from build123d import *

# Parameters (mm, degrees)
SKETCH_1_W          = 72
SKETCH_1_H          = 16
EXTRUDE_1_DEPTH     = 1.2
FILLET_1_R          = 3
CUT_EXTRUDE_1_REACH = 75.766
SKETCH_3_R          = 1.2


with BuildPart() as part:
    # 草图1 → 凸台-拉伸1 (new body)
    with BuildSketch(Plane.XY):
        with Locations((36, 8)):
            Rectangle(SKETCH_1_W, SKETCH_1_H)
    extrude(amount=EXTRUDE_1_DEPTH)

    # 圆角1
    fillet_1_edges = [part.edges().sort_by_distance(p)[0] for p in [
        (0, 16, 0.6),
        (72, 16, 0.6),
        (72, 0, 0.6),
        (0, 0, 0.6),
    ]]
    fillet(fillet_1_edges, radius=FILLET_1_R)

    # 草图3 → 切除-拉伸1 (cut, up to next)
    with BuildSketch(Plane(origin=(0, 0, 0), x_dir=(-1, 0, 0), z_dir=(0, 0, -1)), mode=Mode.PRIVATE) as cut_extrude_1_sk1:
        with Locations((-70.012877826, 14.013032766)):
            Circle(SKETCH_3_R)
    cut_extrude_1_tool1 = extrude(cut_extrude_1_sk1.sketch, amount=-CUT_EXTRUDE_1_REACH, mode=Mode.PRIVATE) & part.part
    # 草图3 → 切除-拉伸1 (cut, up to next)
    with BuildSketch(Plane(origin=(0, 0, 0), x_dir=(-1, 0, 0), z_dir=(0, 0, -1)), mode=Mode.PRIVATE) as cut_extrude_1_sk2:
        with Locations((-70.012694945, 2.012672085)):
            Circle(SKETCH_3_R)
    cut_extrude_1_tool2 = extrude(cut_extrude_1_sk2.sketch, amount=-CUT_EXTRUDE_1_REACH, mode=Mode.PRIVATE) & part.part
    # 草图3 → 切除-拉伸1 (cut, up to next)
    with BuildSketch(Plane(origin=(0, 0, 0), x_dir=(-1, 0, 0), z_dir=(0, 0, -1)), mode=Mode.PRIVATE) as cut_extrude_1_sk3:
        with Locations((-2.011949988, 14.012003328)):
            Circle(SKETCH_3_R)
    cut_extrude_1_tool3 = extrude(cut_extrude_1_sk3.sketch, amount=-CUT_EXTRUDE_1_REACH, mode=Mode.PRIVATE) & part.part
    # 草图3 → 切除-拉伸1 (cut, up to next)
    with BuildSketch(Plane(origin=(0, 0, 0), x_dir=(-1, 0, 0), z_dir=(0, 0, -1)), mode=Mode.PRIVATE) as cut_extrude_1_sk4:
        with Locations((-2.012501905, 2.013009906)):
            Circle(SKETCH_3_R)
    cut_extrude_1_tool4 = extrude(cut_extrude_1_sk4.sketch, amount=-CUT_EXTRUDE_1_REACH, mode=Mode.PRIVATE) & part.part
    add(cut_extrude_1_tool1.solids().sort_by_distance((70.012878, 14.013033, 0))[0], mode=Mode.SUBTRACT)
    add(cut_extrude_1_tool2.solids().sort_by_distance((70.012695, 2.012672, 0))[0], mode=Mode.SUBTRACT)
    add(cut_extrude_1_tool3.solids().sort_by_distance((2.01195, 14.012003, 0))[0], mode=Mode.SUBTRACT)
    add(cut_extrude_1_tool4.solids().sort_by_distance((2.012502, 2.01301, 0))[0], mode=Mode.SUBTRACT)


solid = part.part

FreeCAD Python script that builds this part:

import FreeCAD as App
import Part
import Sketcher

V = App.Vector


def edges_at(feature, points):
    """Names of the edges that pass closest to the given points."""
    edges = feature.Shape.Edges
    near = lambda p: min(range(len(edges)), key=lambda i: edges[i].distToShape(Part.Vertex(*p))[0])
    return sorted({f"Edge{near(p) + 1}" for p in points})


def add_polygon(sketch, points):
    """Adds a closed chain of lines whose ends are joined by coincident constraints."""
    first, n = sketch.GeometryCount, len(points)
    for a, b in zip(points, points[1:] + points[:1]):
        sketch.addGeometry(Part.LineSegment(App.Vector(*a, 0), App.Vector(*b, 0)), False)
    for i in range(n):
        sketch.addConstraint(Sketcher.Constraint("Coincident", first + i, 2, first + (i + 1) % n, 1))

doc = App.newDocument("Part")
body = doc.addObject("PartDesign::Body", "Body")

# Sketch on XY plane
sketch1 = body.newObject("Sketcher::SketchObject", "Sketch")
sketch1.AttachmentSupport = (doc.getObject("XY_Plane"), [""])
sketch1.MapMode = "FlatFace"
add_polygon(sketch1, [(0, 16), (0, 0), (72, 0), (72, 16)])  # lines 0-3
sketch1.addConstraint([
    Sketcher.Constraint("Vertical", 0),
    Sketcher.Constraint("Horizontal", 1),
    Sketcher.Constraint("Vertical", 2),
    Sketcher.Constraint("Horizontal", 3),
    Sketcher.Constraint("Coincident", 0, 2, -1, 1),
    Sketcher.Constraint("DistanceX", 1, 1, 1, 2, 72.0),
    Sketcher.Constraint("DistanceY", 0, 2, 0, 1, 16.0),
])
pad1 = body.newObject("PartDesign::Pad", "Pad")
pad1.Profile = sketch1
pad1.Length = 1.2
doc.recompute()

fillet = body.newObject("PartDesign::Fillet", "Fillet")
fillet.Base = (pad1, edges_at(pad1, [
    (0, 16, 0.6),
    (72, 16, 0.6),
    (72, 0, 0.6),
    (0, 0, 0.6),
]))
fillet.Radius = 3

# Sketch on XY plane
sketch2 = body.newObject("Sketcher::SketchObject", "Sketch001")
sketch2.AttachmentSupport = (doc.getObject("XY_Plane"), [""])
sketch2.MapMode = "FlatFace"
sketch2.addGeometry(Part.Circle(V(70, 14, 0), V(0, 0, 1), 1.2), False)
sketch2.addConstraint([
    Sketcher.Constraint("Diameter", 0, 2.4),
    Sketcher.Constraint("DistanceX", -1, 1, 0, 3, 70.012878),
    Sketcher.Constraint("DistanceY", -1, 1, 0, 3, 14.013033),
])
pocket1 = body.newObject("PartDesign::Pocket", "Pocket")
pocket1.Profile = sketch2
pocket1.Type = "UpToFirst"
pocket1.Reversed = True

# Sketch on XY plane
sketch3 = body.newObject("Sketcher::SketchObject", "Sketch002")
sketch3.AttachmentSupport = (doc.getObject("XY_Plane"), [""])
sketch3.MapMode = "FlatFace"
sketch3.addGeometry(Part.Circle(V(70, 2, 0), V(0, 0, 1), 1.2), False)
sketch3.addConstraint([
    Sketcher.Constraint("Diameter", 0, 2.4),
    Sketcher.Constraint("DistanceX", -1, 1, 0, 3, 70.012695),
    Sketcher.Constraint("DistanceY", -1, 1, 0, 3, 2.012672),
])
pocket2 = body.newObject("PartDesign::Pocket", "Pocket001")
pocket2.Profile = sketch3
pocket2.Type = "UpToFirst"
pocket2.Reversed = True

# Sketch on XY plane
sketch4 = body.newObject("Sketcher::SketchObject", "Sketch003")
sketch4.AttachmentSupport = (doc.getObject("XY_Plane"), [""])
sketch4.MapMode = "FlatFace"
sketch4.addGeometry(Part.Circle(V(2, 14, 0), V(0, 0, 1), 1.2), False)
sketch4.addConstraint([
    Sketcher.Constraint("Diameter", 0, 2.4),
    Sketcher.Constraint("DistanceX", -1, 1, 0, 3, 2.01195),
    Sketcher.Constraint("DistanceY", -1, 1, 0, 3, 14.012003),
])
pocket3 = body.newObject("PartDesign::Pocket", "Pocket002")
pocket3.Profile = sketch4
pocket3.Type = "UpToFirst"
pocket3.Reversed = True

# Sketch on XY plane
sketch5 = body.newObject("Sketcher::SketchObject", "Sketch004")
sketch5.AttachmentSupport = (doc.getObject("XY_Plane"), [""])
sketch5.MapMode = "FlatFace"
sketch5.addGeometry(Part.Circle(V(2, 2, 0), V(0, 0, 1), 1.2), False)
sketch5.addConstraint([
    Sketcher.Constraint("Diameter", 0, 2.4),
    Sketcher.Constraint("DistanceX", -1, 1, 0, 3, 2.012502),
    Sketcher.Constraint("DistanceY", -1, 1, 0, 3, 2.01301),
])
pocket4 = body.newObject("PartDesign::Pocket", "Pocket003")
pocket4.Profile = sketch5
pocket4.Type = "UpToFirst"
pocket4.Reversed = True

doc.recompute()
